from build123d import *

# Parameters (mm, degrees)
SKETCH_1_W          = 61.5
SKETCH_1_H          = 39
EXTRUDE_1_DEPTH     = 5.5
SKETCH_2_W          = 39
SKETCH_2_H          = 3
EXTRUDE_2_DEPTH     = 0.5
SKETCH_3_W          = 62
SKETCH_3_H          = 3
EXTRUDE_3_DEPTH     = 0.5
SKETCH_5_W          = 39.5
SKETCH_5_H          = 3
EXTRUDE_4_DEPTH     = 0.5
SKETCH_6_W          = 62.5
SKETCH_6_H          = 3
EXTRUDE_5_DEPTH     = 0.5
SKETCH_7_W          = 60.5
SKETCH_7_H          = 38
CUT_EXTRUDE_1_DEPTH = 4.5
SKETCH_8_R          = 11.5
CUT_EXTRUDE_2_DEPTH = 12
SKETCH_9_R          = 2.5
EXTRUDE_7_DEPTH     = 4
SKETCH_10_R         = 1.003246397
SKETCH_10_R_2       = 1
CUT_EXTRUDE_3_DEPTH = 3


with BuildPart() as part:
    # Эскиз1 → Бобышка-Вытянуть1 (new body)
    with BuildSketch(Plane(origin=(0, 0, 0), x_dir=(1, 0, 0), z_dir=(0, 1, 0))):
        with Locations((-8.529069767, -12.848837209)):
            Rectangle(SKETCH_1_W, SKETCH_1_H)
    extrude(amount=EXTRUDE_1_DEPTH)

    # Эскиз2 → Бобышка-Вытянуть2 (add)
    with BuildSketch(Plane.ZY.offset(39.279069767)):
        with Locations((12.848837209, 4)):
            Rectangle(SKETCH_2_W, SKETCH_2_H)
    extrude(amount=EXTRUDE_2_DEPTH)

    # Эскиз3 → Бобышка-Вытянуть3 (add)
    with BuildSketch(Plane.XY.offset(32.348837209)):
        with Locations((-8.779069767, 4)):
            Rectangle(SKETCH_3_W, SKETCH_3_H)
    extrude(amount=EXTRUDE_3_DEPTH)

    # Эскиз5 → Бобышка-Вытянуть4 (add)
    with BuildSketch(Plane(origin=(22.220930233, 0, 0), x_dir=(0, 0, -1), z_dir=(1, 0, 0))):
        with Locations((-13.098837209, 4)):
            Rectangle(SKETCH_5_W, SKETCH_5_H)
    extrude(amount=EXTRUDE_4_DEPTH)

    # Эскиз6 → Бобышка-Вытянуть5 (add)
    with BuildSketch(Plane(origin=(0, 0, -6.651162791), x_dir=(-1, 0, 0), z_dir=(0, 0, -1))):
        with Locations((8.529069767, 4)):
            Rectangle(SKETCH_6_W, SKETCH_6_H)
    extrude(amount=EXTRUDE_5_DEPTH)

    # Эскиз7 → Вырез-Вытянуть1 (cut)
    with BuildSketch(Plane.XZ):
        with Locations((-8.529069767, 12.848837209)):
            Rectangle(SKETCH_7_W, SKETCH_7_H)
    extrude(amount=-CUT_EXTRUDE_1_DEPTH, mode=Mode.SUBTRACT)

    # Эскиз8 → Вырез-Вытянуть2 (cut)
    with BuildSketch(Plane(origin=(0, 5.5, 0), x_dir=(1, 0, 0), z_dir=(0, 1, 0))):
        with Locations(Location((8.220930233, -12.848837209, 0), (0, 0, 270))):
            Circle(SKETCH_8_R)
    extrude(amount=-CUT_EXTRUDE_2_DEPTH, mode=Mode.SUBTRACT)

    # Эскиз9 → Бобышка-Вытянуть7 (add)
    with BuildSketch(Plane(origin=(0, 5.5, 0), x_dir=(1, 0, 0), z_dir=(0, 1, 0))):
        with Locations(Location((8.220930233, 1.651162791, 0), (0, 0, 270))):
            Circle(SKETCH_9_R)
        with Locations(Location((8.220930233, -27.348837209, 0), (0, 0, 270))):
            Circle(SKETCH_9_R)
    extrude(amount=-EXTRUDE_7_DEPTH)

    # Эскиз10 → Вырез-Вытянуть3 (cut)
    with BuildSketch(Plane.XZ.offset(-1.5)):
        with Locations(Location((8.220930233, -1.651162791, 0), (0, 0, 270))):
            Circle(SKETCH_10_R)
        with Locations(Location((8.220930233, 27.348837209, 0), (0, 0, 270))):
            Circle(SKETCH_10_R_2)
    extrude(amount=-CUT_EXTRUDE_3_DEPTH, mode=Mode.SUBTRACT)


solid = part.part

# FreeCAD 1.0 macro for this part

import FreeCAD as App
import Part
import Sketcher
from FreeCAD import Vector


def add_polygon(sketch, points):
    """Adds a closed chain of lines whose ends are joined by coincident constraints."""
    first, n = sketch.GeometryCount, len(points)
    for a, b in zip(points, points[1:] + points[:1]):
        sketch.addGeometry(Part.LineSegment(App.Vector(*a, 0), App.Vector(*b, 0)), False)
    for i in range(n):
        sketch.addConstraint(Sketcher.Constraint("Coincident", first + i, 2, first + (i + 1) % n, 1))

doc = App.newDocument("Part")
body = doc.addObject("PartDesign::Body", "Body")

# Sketch on XZ plane
sketch1 = body.newObject("Sketcher::SketchObject", "Sketch")
sketch1.AttachmentSupport = (doc.getObject("XZ_Plane"), [""])
sketch1.MapMode = "FlatFace"
add_polygon(sketch1, [(-39.27907, -6.651163), (-39.27907, 32.348837), (22.22093, 32.348837), (22.22093, -6.651163)])  # lines 0-3
sketch1.addConstraint([
    Sketcher.Constraint("Vertical", 0),
    Sketcher.Constraint("Horizontal", 1),
    Sketcher.Constraint("Vertical", 2),
    Sketcher.Constraint("Horizontal", 3),
    Sketcher.Constraint("DistanceY", 0, 1, 0, 2, 39.0),
    Sketcher.Constraint("DistanceX", 1, 1, 1, 2, 61.5),
    Sketcher.Constraint("DistanceX", 0, 2, -1, 1, 39.27907),
    Sketcher.Constraint("DistanceY", -1, 1, 0, 2, 32.348837),
])
pad1 = body.newObject("PartDesign::Pad", "Pad")
pad1.Profile = sketch1
pad1.Length = 5.5
pad1.Reversed = True

# Sketch on YZ plane
sketch2 = body.newObject("Sketcher::SketchObject", "Sketch001")
sketch2.AttachmentSupport = (doc.getObject("YZ_Plane"), [""])
sketch2.MapMode = "FlatFace"
sketch2.AttachmentOffset = App.Placement(Vector(0, 0, -39.27907), App.Rotation())
add_polygon(sketch2, [(5.5, -6.651163), (2.5, -6.651163), (2.5, 32.348837), (5.5, 32.348837)])  # lines 0-3
sketch2.addConstraint([
    Sketcher.Constraint("Horizontal", 0),
    Sketcher.Constraint("Vertical", 1),
    Sketcher.Constraint("Horizontal", 2),
    Sketcher.Constraint("Vertical", 3),
    Sketcher.Constraint("DistanceX", 0, 2, 0, 1, 3.0),
    Sketcher.Constraint("DistanceY", 1, 1, 1, 2, 39.0),
    Sketcher.Constraint("DistanceX", -1, 1, 0, 2, 2.5),
    Sketcher.Constraint("DistanceY", 0, 2, -1, 1, 6.651163),
])
pad2 = body.newObject("PartDesign::Pad", "Pad001")
pad2.Profile = sketch2
pad2.Length = 0.5
pad2.Reversed = True

# Sketch on XY plane
sketch3 = body.newObject("Sketcher::SketchObject", "Sketch002")
sketch3.AttachmentSupport = (doc.getObject("XY_Plane"), [""])
sketch3.MapMode = "FlatFace"
sketch3.AttachmentOffset = App.Placement(Vector(0, 0, 32.348837), App.Rotation())
add_polygon(sketch3, [(-39.77907, 5.5), (-39.77907, 2.5), (22.22093, 2.5), (22.22093, 5.5)])  # lines 0-3
sketch3.addConstraint([
    Sketcher.Constraint("Vertical", 0),
    Sketcher.Constraint("Horizontal", 1),
    Sketcher.Constraint("Vertical", 2),
    Sketcher.Constraint("Horizontal", 3),
    Sketcher.Constraint("DistanceX", 1, 1, 1, 2, 62.0),
    Sketcher.Constraint("DistanceY", 0, 2, 0, 1, 3.0),
    Sketcher.Constraint("DistanceY", -1, 1, 0, 2, 2.5),
    Sketcher.Constraint("DistanceX", 0, 2, -1, 1, 39.77907),
])
pad3 = body.newObject("PartDesign::Pad", "Pad002")
pad3.Profile = sketch3
pad3.Length = 0.5

# Sketch on YZ plane
sketch4 = body.newObject("Sketcher::SketchObject", "Sketch003")
sketch4.AttachmentSupport = (doc.getObject("YZ_Plane"), [""])
sketch4.MapMode = "FlatFace"
sketch4.AttachmentOffset = App.Placement(Vector(0, 0, 22.22093), App.Rotation())
add_polygon(sketch4, [(5.5, 32.848837), (2.5, 32.848837), (2.5, -6.651163), (5.5, -6.651163)])  # lines 0-3
sketch4.addConstraint([
    Sketcher.Constraint("Horizontal", 0),
    Sketcher.Constraint("Vertical", 1),
    Sketcher.Constraint("Horizontal", 2),
    Sketcher.Constraint("Vertical", 3),
    Sketcher.Constraint("DistanceX", 0, 2, 0, 1, 3.0),
    Sketcher.Constraint("DistanceY", 1, 2, 1, 1, 39.5),
    Sketcher.Constraint("DistanceX", -1, 1, 0, 2, 2.5),
    Sketcher.Constraint("DistanceY", -1, 1, 0, 2, 32.848837),
])
pad4 = body.newObject("PartDesign::Pad", "Pad003")
pad4.Profile = sketch4
pad4.Length = 0.5

# Sketch on XY plane
sketch5 = body.newObject("Sketcher::SketchObject", "Sketch004")
sketch5.AttachmentSupport = (doc.getObject("XY_Plane"), [""])
sketch5.MapMode = "FlatFace"
sketch5.AttachmentOffset = App.Placement(Vector(0, 0, -6.651163), App.Rotation())
add_polygon(sketch5, [(22.72093, 5.5), (22.72093, 2.5), (-39.77907, 2.5), (-39.77907, 5.5)])  # lines 0-3
sketch5.addConstraint([
    Sketcher.Constraint("Vertical", 0),
    Sketcher.Constraint("Horizontal", 1),
    Sketcher.Constraint("Vertical", 2),
    Sketcher.Constraint("Horizontal", 3),
    Sketcher.Constraint("DistanceY", 0, 2, 0, 1, 3.0),
    Sketcher.Constraint("DistanceX", 1, 2, 1, 1, 62.5),
    Sketcher.Constraint("DistanceY", -1, 1, 0, 2, 2.5),
    Sketcher.Constraint("DistanceX", -1, 1, 0, 2, 22.72093),
])
pad5 = body.newObject("PartDesign::Pad", "Pad004")
pad5.Profile = sketch5
pad5.Length = 0.5
pad5.Reversed = True

# Sketch on XZ plane
sketch6 = body.newObject("Sketcher::SketchObject", "Sketch005")
sketch6.AttachmentSupport = (doc.getObject("XZ_Plane"), [""])
sketch6.MapMode = "FlatFace"
add_polygon(sketch6, [(-38.77907, 31.848837), (-38.77907, -6.151163), (21.72093, -6.151163), (21.72093, 31.848837)])  # lines 0-3
sketch6.addConstraint([
    Sketcher.Constraint("Vertical", 0),
    Sketcher.Constraint("Horizontal", 1),
    Sketcher.Constraint("Vertical", 2),
    Sketcher.Constraint("Horizontal", 3),
    Sketcher.Constraint("DistanceY", 0, 2, 0, 1, 38.0),
    Sketcher.Constraint("DistanceX", 1, 1, 1, 2, 60.5),
    Sketcher.Constraint("DistanceX", 0, 2, -1, 1, 38.77907),
    Sketcher.Constraint("DistanceY", 0, 2, -1, 1, 6.151163),
])
pocket1 = body.newObject("PartDesign::Pocket", "Pocket")
pocket1.Profile = sketch6
pocket1.Length = 4.5

# Sketch on XZ plane
sketch7 = body.newObject("Sketcher::SketchObject", "Sketch006")
sketch7.AttachmentSupport = (doc.getObject("XZ_Plane"), [""])
sketch7.MapMode = "FlatFace"
sketch7.AttachmentOffset = App.Placement(Vector(0, 0, -5.5), App.Rotation())
sketch7.addGeometry(Part.Circle(Vector(8.22093, 12.848837, 0), Vector(0, 0, 1), 11.5), False)
sketch7.addConstraint([
    Sketcher.Constraint("Diameter", 0, 23.0),
    Sketcher.Constraint("DistanceX", -1, 1, 0, 3, 8.22093),
    Sketcher.Constraint("DistanceY", -1, 1, 0, 3, 12.848837),
])
pocket2 = body.newObject("PartDesign::Pocket", "Pocket001")
pocket2.Profile = sketch7
pocket2.Length = 12
pocket2.Reversed = True

# Sketch on XZ plane
sketch8 = body.newObject("Sketcher::SketchObject", "Sketch007")
sketch8.AttachmentSupport = (doc.getObject("XZ_Plane"), [""])
sketch8.MapMode = "FlatFace"
sketch8.AttachmentOffset = App.Placement(Vector(0, 0, -5.5), App.Rotation())
sketch8.addGeometry([
    Part.Circle(Vector(8.22093, -1.651163, 0), Vector(0, 0, 1), 2.5),
    Part.Circle(Vector(8.22093, 27.348837, 0), Vector(0, 0, 1), 2.5),
], False)
sketch8.addConstraint([
    Sketcher.Constraint("Equal", 0, 1),
    Sketcher.Constraint("Vertical", 0, 3, 1, 3),
    Sketcher.Constraint("Diameter", 0, 5.0),
    Sketcher.Constraint("DistanceY", 0, 3, 1, 3, 29.0),
    Sketcher.Constraint("DistanceX", -1, 1, 0, 3, 8.22093),
    Sketcher.Constraint("DistanceY", 0, 3, -1, 1, 1.651163),
])
pad6 = body.newObject("PartDesign::Pad", "Pad005")
pad6.Profile = sketch8
pad6.Length = 4

# Sketch on XZ plane
sketch9 = body.newObject("Sketcher::SketchObject", "Sketch008")
sketch9.AttachmentSupport = (doc.getObject("XZ_Plane"), [""])
sketch9.MapMode = "FlatFace"
sketch9.AttachmentOffset = App.Placement(Vector(0, 0, -1.5), App.Rotation())
sketch9.addGeometry([
    Part.Circle(Vector(8.22093, -1.651163, 0), Vector(0, 0, 1), 1.003246),
    Part.Circle(Vector(8.22093, 27.348837, 0), Vector(0, 0, 1), 1),
], False)
sketch9.addConstraint([
    Sketcher.Constraint("Vertical", 0, 3, 1, 3),
    Sketcher.Constraint("Diameter", 1, 2.0),
    Sketcher.Constraint("DistanceY", 0, 3, 1, 3, 29.0),
    Sketcher.Constraint("Diameter", 0, 2.006493),
    Sketcher.Constraint("DistanceX", -1, 1, 0, 3, 8.22093),
    Sketcher.Constraint("DistanceY", 0, 3, -1, 1, 1.651163),
])
pocket3 = body.newObject("PartDesign::Pocket", "Pocket002")
pocket3.Profile = sketch9
pocket3.Length = 3

doc.recompute()
